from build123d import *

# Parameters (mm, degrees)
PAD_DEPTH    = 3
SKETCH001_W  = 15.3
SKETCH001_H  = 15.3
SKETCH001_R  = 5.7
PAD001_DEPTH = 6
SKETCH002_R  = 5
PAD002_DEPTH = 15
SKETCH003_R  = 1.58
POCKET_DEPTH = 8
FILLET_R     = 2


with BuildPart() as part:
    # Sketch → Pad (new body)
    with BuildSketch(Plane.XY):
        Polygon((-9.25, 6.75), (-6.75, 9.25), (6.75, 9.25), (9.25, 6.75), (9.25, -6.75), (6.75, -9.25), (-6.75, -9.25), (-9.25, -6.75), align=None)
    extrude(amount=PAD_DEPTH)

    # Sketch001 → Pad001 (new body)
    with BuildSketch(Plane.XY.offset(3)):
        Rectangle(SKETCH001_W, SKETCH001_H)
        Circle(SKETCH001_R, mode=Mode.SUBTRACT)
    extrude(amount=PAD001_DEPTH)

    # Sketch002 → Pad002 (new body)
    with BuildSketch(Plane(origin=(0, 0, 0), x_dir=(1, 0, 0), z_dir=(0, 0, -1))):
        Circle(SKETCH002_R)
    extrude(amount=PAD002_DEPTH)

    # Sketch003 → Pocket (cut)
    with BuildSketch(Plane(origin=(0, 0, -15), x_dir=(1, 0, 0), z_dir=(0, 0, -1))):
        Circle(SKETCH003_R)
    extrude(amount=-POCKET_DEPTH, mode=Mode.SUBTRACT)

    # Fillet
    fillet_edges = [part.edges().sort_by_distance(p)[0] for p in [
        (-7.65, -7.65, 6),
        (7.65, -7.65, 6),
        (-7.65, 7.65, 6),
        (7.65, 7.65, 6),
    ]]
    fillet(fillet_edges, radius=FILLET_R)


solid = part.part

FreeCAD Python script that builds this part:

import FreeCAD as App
import Part
import Sketcher

V = App.Vector


def edges_at(feature, points):
    """Names of the edges that pass closest to the given points."""
    edges = feature.Shape.Edges
    near = lambda p: min(range(len(edges)), key=lambda i: edges[i].distToShape(Part.Vertex(*p))[0])
    return sorted({f"Edge{near(p) + 1}" for p in points})

doc = App.newDocument("Part")
body = doc.addObject("PartDesign::Body", "Body")

sketch1 = body.newObject("Sketcher::SketchObject", "Sketch")
sketch1.AttachmentSupport = (doc.getObject("XY_Plane"), [""])
sketch1.MapMode = "FlatFace"
sketch1.addGeometry(Part.LineSegment(V(-6.8, 9.2, 0), V(-9.2, 6.8, 0)), False)
sketch1.addGeometry(Part.LineSegment(V(-9.2, 6.8, 0), V(-9.2, -6.8, 0)), False)
sketch1.addGeometry(Part.LineSegment(V(-9.2, -6.8, 0), V(-6.8, -9.2, 0)), False)
sketch1.addGeometry(Part.LineSegment(V(-6.8, -9.2, 0), V(6.8, -9.2, 0)), False)
sketch1.addGeometry(Part.LineSegment(V(6.8, -9.2, 0), V(9.2, -6.8, 0)), False)
sketch1.addGeometry(Part.LineSegment(V(9.2, -6.8, 0), V(9.2, 6.8, 0)), False)
sketch1.addGeometry(Part.LineSegment(V(9.2, 6.8, 0), V(6.8, 9.2, 0)), False)
sketch1.addGeometry(Part.LineSegment(V(6.8, 9.2, 0), V(-6.8, 9.2, 0)), False)
sketch1.addConstraint(Sketcher.Constraint("Coincident", 0, 2, 1, 1))
sketch1.addConstraint(Sketcher.Constraint("Coincident", 1, 2, 2, 1))
sketch1.addConstraint(Sketcher.Constraint("Coincident", 2, 2, 3, 1))
sketch1.addConstraint(Sketcher.Constraint("Coincident", 3, 2, 4, 1))
sketch1.addConstraint(Sketcher.Constraint("Coincident", 4, 2, 5, 1))
sketch1.addConstraint(Sketcher.Constraint("Coincident", 5, 2, 6, 1))
sketch1.addConstraint(Sketcher.Constraint("Coincident", 6, 2, 7, 1))
sketch1.addConstraint(Sketcher.Constraint("Coincident", 7, 2, 0, 1))
sketch1.addConstraint(Sketcher.Constraint("Vertical", 1))
sketch1.addConstraint(Sketcher.Constraint("Horizontal", 3))
sketch1.addConstraint(Sketcher.Constraint("Vertical", 5))
sketch1.addConstraint(Sketcher.Constraint("Horizontal", 7))
sketch1.addConstraint(Sketcher.Constraint("Symmetric", 0, 2, 4, 2, -1, 1))
sketch1.addConstraint(Sketcher.Constraint("Symmetric", 2, 2, 6, 2, -1, 1))
sketch1.addConstraint(Sketcher.Constraint("Perpendicular", 0, 2))
sketch1.addConstraint(Sketcher.Constraint("Perpendicular", 2, 4))
sketch1.addConstraint(Sketcher.Constraint("Perpendicular", 4, 6))
sketch1.addConstraint(Sketcher.Constraint("Horizontal", 1, 2, 4, 2))
sketch1.addConstraint(Sketcher.Constraint("Vertical", 3, 2, 6, 2))
sketch1.addConstraint(Sketcher.Constraint("Equal", 7, 1))
sketch1.addConstraint(Sketcher.Constraint("DistanceX", 3, 1, 3, 2, 13.5))
sketch1.addConstraint(Sketcher.Constraint("DistanceY", 2, 2, 0, 2, 16.0))
pad1 = body.newObject("PartDesign::Pad", "Pad")
pad1.Profile = sketch1
pad1.Length = 3

sketch2 = body.newObject("Sketcher::SketchObject", "Sketch001")
sketch2.AttachmentSupport = (doc.getObject("XY_Plane"), [""])
sketch2.MapMode = "FlatFace"
sketch2.AttachmentOffset = App.Placement(V(0, 0, 3), App.Rotation())
sketch2.addGeometry(Part.LineSegment(V(-8, 8, 0), V(-8, -8, 0)), False)
sketch2.addGeometry(Part.LineSegment(V(-8, -8, 0), V(8, -8, 0)), False)
sketch2.addGeometry(Part.LineSegment(V(8, -8, 0), V(8, 8, 0)), False)
sketch2.addGeometry(Part.LineSegment(V(8, 8, 0), V(-8, 8, 0)), False)
sketch2.addGeometry(Part.Circle(V(0, 0, 0), V(0, 0, 1), 6), False)
sketch2.addConstraint(Sketcher.Constraint("Coincident", 0, 2, 1, 1))
sketch2.addConstraint(Sketcher.Constraint("Coincident", 1, 2, 2, 1))
sketch2.addConstraint(Sketcher.Constraint("Coincident", 2, 2, 3, 1))
sketch2.addConstraint(Sketcher.Constraint("Coincident", 3, 2, 0, 1))
sketch2.addConstraint(Sketcher.Constraint("Vertical", 0))
sketch2.addConstraint(Sketcher.Constraint("Horizontal", 1))
sketch2.addConstraint(Sketcher.Constraint("Vertical", 2))
sketch2.addConstraint(Sketcher.Constraint("Horizontal", 3))
sketch2.addConstraint(Sketcher.Constraint("Coincident", 4, 3, -1, 1))
sketch2.addConstraint(Sketcher.Constraint("Symmetric", 0, 2, 2, 2, -1, 1))
sketch2.addConstraint(Sketcher.Constraint("Equal", 3, 0))
sketch2.addConstraint(Sketcher.Constraint("Diameter", 4, 11.4))
sketch2.addConstraint(Sketcher.Constraint("DistanceX", 1, 1, 1, 2, 15.3))
pad2 = body.newObject("PartDesign::Pad", "Pad001")
pad2.Profile = sketch2
pad2.Length = 6

sketch3 = body.newObject("Sketcher::SketchObject", "Sketch002")
sketch3.AttachmentSupport = (doc.getObject("XY_Plane"), [""])
sketch3.MapMode = "FlatFace"
sketch3.addGeometry(Part.Circle(V(0, 0, 0), V(0, 0, 1), 5), False)
sketch3.addConstraint(Sketcher.Constraint("Coincident", 0, 3, -1, 1))
sketch3.addConstraint(Sketcher.Constraint("Diameter", 0, 10.0))
pad3 = body.newObject("PartDesign::Pad", "Pad002")
pad3.Profile = sketch3
pad3.Length = 15
pad3.Reversed = True

sketch4 = body.newObject("Sketcher::SketchObject", "Sketch003")
sketch4.AttachmentSupport = (doc.getObject("XY_Plane"), [""])
sketch4.MapMode = "FlatFace"
sketch4.AttachmentOffset = App.Placement(V(0, 0, -15), App.Rotation())
sketch4.addGeometry(Part.Circle(V(0, 0, 0), V(0, 0, 1), 1.6), False)
sketch4.addConstraint(Sketcher.Constraint("Coincident", 0, 3, -1, 1))
sketch4.addConstraint(Sketcher.Constraint("Diameter", 0, 3.16))
pocket1 = body.newObject("PartDesign::Pocket", "Pocket")
pocket1.Profile = sketch4
pocket1.Length = 8
pocket1.Reversed = True
doc.recompute()

fillet = body.newObject("PartDesign::Fillet", "Fillet")
fillet.Base = (pocket1, edges_at(pocket1, [
    (-7.65, -7.65, 6),
    (7.65, -7.65, 6),
    (-7.65, 7.65, 6),
    (7.65, 7.65, 6),
]))
fillet.Radius = 2

doc.recompute()
